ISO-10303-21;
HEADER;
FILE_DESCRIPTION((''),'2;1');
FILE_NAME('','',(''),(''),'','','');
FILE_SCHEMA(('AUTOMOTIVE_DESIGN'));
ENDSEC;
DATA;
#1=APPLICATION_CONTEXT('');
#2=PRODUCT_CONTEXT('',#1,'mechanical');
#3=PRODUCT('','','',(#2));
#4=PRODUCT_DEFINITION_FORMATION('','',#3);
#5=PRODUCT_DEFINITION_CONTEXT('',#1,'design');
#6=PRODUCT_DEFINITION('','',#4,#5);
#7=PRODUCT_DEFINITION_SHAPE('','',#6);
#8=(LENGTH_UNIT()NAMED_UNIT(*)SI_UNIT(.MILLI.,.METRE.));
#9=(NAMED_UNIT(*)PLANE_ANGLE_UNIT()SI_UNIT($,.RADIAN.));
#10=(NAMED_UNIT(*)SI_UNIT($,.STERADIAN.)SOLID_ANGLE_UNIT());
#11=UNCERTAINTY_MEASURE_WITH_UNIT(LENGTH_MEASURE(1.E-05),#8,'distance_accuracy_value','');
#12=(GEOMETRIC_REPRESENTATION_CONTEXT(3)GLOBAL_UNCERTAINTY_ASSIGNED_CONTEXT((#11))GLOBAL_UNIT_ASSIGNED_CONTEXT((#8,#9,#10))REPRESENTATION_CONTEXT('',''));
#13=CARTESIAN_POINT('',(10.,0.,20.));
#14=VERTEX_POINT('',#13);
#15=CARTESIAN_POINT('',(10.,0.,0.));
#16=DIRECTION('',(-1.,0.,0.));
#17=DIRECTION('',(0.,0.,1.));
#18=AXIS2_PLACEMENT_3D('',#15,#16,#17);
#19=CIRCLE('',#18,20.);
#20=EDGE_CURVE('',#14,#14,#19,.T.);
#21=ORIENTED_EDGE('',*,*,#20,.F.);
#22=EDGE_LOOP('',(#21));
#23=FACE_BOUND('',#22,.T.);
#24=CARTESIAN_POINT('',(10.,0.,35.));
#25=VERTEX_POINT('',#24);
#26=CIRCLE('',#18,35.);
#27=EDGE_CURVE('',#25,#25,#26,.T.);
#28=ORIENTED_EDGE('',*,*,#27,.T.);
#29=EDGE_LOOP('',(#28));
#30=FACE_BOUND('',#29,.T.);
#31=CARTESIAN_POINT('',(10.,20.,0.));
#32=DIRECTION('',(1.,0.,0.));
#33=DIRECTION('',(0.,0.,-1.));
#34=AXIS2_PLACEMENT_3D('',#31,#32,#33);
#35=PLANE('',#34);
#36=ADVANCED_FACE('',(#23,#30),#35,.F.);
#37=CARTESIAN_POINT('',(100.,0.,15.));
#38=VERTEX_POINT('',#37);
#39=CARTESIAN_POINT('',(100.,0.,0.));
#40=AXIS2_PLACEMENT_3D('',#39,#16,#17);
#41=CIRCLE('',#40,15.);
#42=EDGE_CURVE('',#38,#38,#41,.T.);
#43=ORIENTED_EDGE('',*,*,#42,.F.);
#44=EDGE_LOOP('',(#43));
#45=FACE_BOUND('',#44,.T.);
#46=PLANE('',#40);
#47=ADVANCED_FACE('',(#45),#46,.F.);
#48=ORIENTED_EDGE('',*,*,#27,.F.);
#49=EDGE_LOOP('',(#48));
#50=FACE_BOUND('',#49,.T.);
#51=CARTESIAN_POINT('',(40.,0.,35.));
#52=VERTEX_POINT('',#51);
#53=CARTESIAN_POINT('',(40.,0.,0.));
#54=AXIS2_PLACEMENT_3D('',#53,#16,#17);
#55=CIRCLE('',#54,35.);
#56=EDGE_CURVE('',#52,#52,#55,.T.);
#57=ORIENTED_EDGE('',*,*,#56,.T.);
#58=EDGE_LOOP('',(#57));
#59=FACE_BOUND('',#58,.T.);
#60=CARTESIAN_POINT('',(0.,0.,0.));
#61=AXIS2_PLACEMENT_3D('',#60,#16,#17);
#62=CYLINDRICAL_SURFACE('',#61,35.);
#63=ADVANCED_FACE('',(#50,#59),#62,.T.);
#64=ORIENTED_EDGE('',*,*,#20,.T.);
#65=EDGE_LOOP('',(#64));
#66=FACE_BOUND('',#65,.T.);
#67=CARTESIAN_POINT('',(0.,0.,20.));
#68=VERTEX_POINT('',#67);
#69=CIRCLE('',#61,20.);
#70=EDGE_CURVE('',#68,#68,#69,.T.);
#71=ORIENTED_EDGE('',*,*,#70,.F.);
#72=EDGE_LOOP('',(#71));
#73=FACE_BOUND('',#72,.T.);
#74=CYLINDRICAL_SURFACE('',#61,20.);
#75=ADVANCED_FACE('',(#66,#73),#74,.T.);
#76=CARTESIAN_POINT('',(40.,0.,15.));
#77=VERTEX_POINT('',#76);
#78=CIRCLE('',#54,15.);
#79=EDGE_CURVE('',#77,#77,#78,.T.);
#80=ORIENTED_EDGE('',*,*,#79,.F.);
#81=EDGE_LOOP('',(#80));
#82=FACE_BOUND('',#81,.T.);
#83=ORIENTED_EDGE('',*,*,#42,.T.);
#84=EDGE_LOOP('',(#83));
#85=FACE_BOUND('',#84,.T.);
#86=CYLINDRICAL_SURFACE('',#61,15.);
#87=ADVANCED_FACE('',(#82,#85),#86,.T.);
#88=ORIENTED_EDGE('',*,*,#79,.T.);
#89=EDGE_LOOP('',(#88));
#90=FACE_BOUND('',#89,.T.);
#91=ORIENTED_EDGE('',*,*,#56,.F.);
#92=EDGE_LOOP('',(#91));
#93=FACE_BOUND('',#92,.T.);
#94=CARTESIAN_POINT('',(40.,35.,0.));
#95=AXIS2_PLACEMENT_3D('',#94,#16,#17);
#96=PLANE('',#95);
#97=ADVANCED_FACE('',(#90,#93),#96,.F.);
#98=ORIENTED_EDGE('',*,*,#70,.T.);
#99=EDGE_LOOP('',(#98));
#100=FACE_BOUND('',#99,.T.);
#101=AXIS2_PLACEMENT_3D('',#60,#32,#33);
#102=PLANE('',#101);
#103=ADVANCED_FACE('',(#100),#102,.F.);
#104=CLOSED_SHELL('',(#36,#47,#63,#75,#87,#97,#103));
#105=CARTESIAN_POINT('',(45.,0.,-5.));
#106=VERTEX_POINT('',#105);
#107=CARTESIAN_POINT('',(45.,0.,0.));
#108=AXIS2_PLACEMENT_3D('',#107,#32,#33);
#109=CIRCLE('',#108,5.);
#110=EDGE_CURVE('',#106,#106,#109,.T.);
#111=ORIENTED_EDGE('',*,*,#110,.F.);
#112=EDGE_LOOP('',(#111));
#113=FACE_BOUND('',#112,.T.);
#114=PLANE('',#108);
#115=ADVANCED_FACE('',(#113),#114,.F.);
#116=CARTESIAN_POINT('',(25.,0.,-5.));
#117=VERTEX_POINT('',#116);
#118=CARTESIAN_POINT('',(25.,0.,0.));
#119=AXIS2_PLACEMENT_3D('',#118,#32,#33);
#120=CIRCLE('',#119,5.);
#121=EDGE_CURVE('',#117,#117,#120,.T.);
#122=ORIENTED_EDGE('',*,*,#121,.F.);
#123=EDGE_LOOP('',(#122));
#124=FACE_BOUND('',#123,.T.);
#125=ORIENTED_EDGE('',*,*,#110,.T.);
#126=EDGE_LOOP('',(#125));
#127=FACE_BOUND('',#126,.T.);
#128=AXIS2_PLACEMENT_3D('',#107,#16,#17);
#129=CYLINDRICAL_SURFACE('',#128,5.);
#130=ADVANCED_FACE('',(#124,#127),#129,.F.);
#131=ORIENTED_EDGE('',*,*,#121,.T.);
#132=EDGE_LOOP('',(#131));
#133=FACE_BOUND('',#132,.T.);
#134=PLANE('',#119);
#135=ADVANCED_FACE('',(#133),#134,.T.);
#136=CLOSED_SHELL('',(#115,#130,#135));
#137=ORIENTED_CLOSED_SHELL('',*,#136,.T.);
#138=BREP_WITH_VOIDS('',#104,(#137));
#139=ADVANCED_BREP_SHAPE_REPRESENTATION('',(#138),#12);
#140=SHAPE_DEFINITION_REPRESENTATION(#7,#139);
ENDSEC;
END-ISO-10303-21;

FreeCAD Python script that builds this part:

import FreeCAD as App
import Part
import Sketcher

V = App.Vector

doc = App.newDocument("Part")
body = doc.addObject("PartDesign::Body", "Body")

# Sketch on XY plane
sketch1 = body.newObject("Sketcher::SketchObject", "Sketch")
sketch1.AttachmentSupport = (doc.getObject("XY_Plane"), [""])
sketch1.MapMode = "FlatFace"
sketch1.addGeometry([
    Part.LineSegment(V(0, 0, 0), V(100, 0, 0)),  # 0
    Part.LineSegment(V(100, 0, 0), V(100, 15, 0)),  # 1
    Part.LineSegment(V(100, 15, 0), V(40, 15, 0)),  # 2
    Part.LineSegment(V(40, 15, 0), V(40, 35, 0)),  # 3
    Part.LineSegment(V(40, 35, 0), V(10, 35, 0)),  # 4
    Part.LineSegment(V(10, 35, 0), V(10, 20, 0)),  # 5
    Part.LineSegment(V(10, 20, 0), V(0, 20, 0)),  # 6
    Part.LineSegment(V(0, 20, 0), V(0, 0, 0)),  # 7
], False)
sketch1.addConstraint([
    Sketcher.Constraint("Coincident", 0, 2, 1, 1),
    Sketcher.Constraint("Coincident", 1, 2, 2, 1),
    Sketcher.Constraint("Coincident", 2, 2, 3, 1),
    Sketcher.Constraint("Coincident", 3, 2, 4, 1),
    Sketcher.Constraint("Coincident", 4, 2, 5, 1),
    Sketcher.Constraint("Coincident", 5, 2, 6, 1),
    Sketcher.Constraint("Coincident", 6, 2, 7, 1),
    Sketcher.Constraint("Coincident", 7, 2, 0, 1),
    Sketcher.Constraint("Horizontal", 0),
    Sketcher.Constraint("Vertical", 1),
    Sketcher.Constraint("Horizontal", 2),
    Sketcher.Constraint("Vertical", 3),
    Sketcher.Constraint("Horizontal", 4),
    Sketcher.Constraint("Vertical", 5),
    Sketcher.Constraint("Horizontal", 6),
    Sketcher.Constraint("Vertical", 7),
    Sketcher.Constraint("Coincident", 7, 2, -1, 1),
    Sketcher.Constraint("Equal", 1, 5),
    Sketcher.Constraint("DistanceX", 0, 1, 0, 2, 100.0),
    Sketcher.Constraint("DistanceX", 2, 2, 2, 1, 60.0),
    Sketcher.Constraint("DistanceX", 4, 2, 4, 1, 30.0),
    Sketcher.Constraint("DistanceY", 1, 1, 1, 2, 15.0),
    Sketcher.Constraint("DistanceY", 3, 1, 3, 2, 20.0),
])
revolution = body.newObject("PartDesign::Revolution", "Revolution")
revolution.Profile = sketch1
revolution.ReferenceAxis = (sketch1, ["H_Axis"])
revolution.Angle = 360

# Sketch on YZ plane
sketch2 = body.newObject("Sketcher::SketchObject", "Sketch001")
sketch2.AttachmentSupport = (doc.getObject("YZ_Plane"), [""])
sketch2.MapMode = "FlatFace"
sketch2.AttachmentOffset = App.Placement(V(0, 0, 25), App.Rotation())
sketch2.addGeometry(Part.Circle(V(0, 0, 0), V(0, 0, 1), 5), False)
sketch2.addConstraint([
    Sketcher.Constraint("Coincident", 0, 3, -1, 1),
    Sketcher.Constraint("Diameter", 0, 10.0),
])
pocket1 = body.newObject("PartDesign::Pocket", "Pocket")
pocket1.Profile = sketch2
pocket1.Length = 20
pocket1.Reversed = True

doc.recompute()
